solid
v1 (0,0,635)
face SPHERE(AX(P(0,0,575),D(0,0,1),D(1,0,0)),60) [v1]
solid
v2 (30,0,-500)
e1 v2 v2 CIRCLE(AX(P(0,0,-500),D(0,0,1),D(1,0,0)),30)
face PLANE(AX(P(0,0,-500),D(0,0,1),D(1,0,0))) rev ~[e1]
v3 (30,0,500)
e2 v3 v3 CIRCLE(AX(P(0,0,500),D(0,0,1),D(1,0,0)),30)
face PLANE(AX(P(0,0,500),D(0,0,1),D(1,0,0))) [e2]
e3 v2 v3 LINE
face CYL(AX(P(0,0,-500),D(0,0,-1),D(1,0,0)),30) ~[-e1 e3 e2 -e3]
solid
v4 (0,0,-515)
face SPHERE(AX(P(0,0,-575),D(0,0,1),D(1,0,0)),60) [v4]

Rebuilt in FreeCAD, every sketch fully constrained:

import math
import FreeCAD as App
import Part
import Sketcher
from FreeCAD import Vector
Q = App.Units.Quantity

doc = App.newDocument("Part")
body = doc.addObject("PartDesign::Body", "Body")

# Sketch on XZ plane
sketch1 = body.newObject("Sketcher::SketchObject", "Sketch")
sketch1.AttachmentSupport = (doc.getObject("XZ_Plane"), [""])
sketch1.MapMode = "FlatFace"
sketch1.addGeometry(Part.ArcOfCircle(Part.Circle(Vector(0, -575, 0), Vector(0, 0, 1), 60), math.radians(-90), math.radians(90)), False)
sketch1.addGeometry(Part.LineSegment(Vector(0, -515, 0), Vector(0, -635, 0)), False)
sketch1.addConstraint(Sketcher.Constraint("Coincident", 0, 1, 1, 2))
sketch1.addConstraint(Sketcher.Constraint("Coincident", 1, 1, 0, 2))
sketch1.addConstraint(Sketcher.Constraint("Vertical", 1))
sketch1.addConstraint(Sketcher.Constraint("PointOnObject", 0, 3, -2))
sketch1.addConstraint(Sketcher.Constraint("PointOnObject", 0, 1, -2))
sketch1.addConstraint(Sketcher.Constraint("Radius", 0, Q("60 mm")))
sketch1.addConstraint(Sketcher.Constraint("DistanceY", 0, 3, -1, 1, Q("575 mm")))
revolution = body.newObject("PartDesign::Revolution", "Revolution")
revolution.Profile = sketch1
revolution.ReferenceAxis = (sketch1, ["V_Axis"])
revolution.Angle = 360
body2 = doc.addObject("PartDesign::Body", "Body001")

# Sketch on XZ plane
sketch2 = body2.newObject("Sketcher::SketchObject", "Sketch001")
sketch2.AttachmentSupport = (doc.getObject("XZ_Plane001"), [""])
sketch2.MapMode = "FlatFace"
sketch2.addGeometry(Part.ArcOfCircle(Part.Circle(Vector(0, 575, 0), Vector(0, 0, 1), 60), math.radians(-90), math.radians(90)), False)
sketch2.addGeometry(Part.LineSegment(Vector(0, 635, 0), Vector(0, 515, 0)), False)
sketch2.addConstraint(Sketcher.Constraint("Coincident", 0, 1, 1, 2))
sketch2.addConstraint(Sketcher.Constraint("Coincident", 1, 1, 0, 2))
sketch2.addConstraint(Sketcher.Constraint("Vertical", 1))
sketch2.addConstraint(Sketcher.Constraint("PointOnObject", 0, 3, -2))
sketch2.addConstraint(Sketcher.Constraint("PointOnObject", 0, 1, -2))
sketch2.addConstraint(Sketcher.Constraint("Radius", 0, Q("60 mm")))
sketch2.addConstraint(Sketcher.Constraint("DistanceY", -1, 1, 0, 3, Q("575 mm")))
revolution2 = body2.newObject("PartDesign::Revolution", "Revolution001")
revolution2.Profile = sketch2
revolution2.ReferenceAxis = (sketch2, ["V_Axis"])
revolution2.Angle = 360
body3 = doc.addObject("PartDesign::Body", "Body002")
body3.AllowCompound = True

# Sketch on XY plane
sketch3 = body3.newObject("Sketcher::SketchObject", "Sketch002")
sketch3.AttachmentSupport = (doc.getObject("XY_Plane002"), [""])
sketch3.MapMode = "FlatFace"
sketch3.AttachmentOffset = App.Placement(Vector(0, 0, -500), App.Rotation())
sketch3.addGeometry(Part.Circle(Vector(0, 0, 0), Vector(0, 0, 1), 30), False)
sketch3.addConstraint(Sketcher.Constraint("Coincident", 0, 3, -1, 1))
sketch3.addConstraint(Sketcher.Constraint("Diameter", 0, Q("60 mm")))
pad1 = body3.newObject("PartDesign::Pad", "Pad")
pad1.Profile = sketch3
pad1.Length = 1000
doc.recompute()

boolean = body3.newObject("PartDesign::Boolean", "Boolean")
boolean.Type = "Fuse"
boolean.addObjects([body])
doc.recompute()

boolean2 = body3.newObject("PartDesign::Boolean", "Boolean001")
boolean2.Type = "Fuse"
boolean2.addObjects([body2])

doc.recompute()
